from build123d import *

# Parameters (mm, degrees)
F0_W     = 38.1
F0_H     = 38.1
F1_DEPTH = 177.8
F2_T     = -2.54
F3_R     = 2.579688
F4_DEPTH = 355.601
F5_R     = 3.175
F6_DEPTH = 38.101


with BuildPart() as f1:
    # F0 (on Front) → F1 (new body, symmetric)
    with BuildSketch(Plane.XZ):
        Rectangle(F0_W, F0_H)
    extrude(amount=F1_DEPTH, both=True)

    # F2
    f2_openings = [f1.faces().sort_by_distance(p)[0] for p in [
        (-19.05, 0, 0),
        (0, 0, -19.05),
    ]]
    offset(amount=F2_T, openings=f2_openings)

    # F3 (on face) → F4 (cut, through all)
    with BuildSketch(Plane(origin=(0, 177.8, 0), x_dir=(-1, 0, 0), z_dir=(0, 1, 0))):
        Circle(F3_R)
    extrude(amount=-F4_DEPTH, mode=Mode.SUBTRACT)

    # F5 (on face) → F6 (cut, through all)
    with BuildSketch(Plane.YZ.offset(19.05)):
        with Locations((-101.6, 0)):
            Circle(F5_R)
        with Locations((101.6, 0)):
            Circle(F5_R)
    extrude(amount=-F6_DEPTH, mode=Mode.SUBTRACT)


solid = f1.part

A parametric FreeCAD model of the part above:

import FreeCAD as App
import Part
import Sketcher
from FreeCAD import Vector
Q = App.Units.Quantity


def faces_at(feature, points):
    """Names of the faces that lie closest to the given points."""
    faces = feature.Shape.Faces
    near = lambda p: min(range(len(faces)), key=lambda i: faces[i].distToShape(Part.Vertex(*p))[0])
    return sorted({f"Face{near(p) + 1}" for p in points})


def add_polygon(sketch, points):
    """Adds a closed chain of lines whose ends are joined by coincident constraints."""
    first, n = sketch.GeometryCount, len(points)
    for a, b in zip(points, points[1:] + points[:1]):
        sketch.addGeometry(Part.LineSegment(App.Vector(*a, 0), App.Vector(*b, 0)), False)
    for i in range(n):
        sketch.addConstraint(Sketcher.Constraint("Coincident", first + i, 2, first + (i + 1) % n, 1))

doc = App.newDocument("Part")
body = doc.addObject("PartDesign::Body", "Body")

# Sketch on XZ plane
sketch1 = body.newObject("Sketcher::SketchObject", "Sketch")
sketch1.AttachmentSupport = (doc.getObject("XZ_Plane"), [""])
sketch1.MapMode = "FlatFace"
add_polygon(sketch1, [(-19, 19), (-19, -19), (19, -19), (19, 19)])  # lines 0-3
sketch1.addConstraint([
    Sketcher.Constraint("Vertical", 0),
    Sketcher.Constraint("Horizontal", 1),
    Sketcher.Constraint("Vertical", 2),
    Sketcher.Constraint("Horizontal", 3),
    Sketcher.Constraint("Symmetric", 0, 2, 2, 2, -1, 1),
    Sketcher.Constraint("Equal", 3, 0),
    Sketcher.Constraint("DistanceX", 1, 1, 1, 2, Q("1.5 in")),
])
pad1 = body.newObject("PartDesign::Pad", "Pad")
pad1.Profile = sketch1
pad1.Length = Q("14 in")
pad1.Midplane = True
doc.recompute()

thickness = body.newObject("PartDesign::Thickness", "Thickness")
thickness.Base = (pad1, faces_at(pad1, [(-19.05, 0, 0), (0, 0, -19.05)]))
thickness.Value = Q("0.1 in")
thickness.Reversed = True
thickness.Join = "Arc"

# Sketch on XZ plane
sketch2 = body.newObject("Sketcher::SketchObject", "Sketch001")
sketch2.AttachmentSupport = (doc.getObject("XZ_Plane"), [""])
sketch2.MapMode = "FlatFace"
sketch2.AttachmentOffset = App.Placement(Vector(0, 0, -7 * 25.4), App.Rotation())
sketch2.addGeometry(Part.Circle(Vector(0, 0, 0), Vector(0, 0, 1), 2.6), False)
sketch2.addConstraint([
    Sketcher.Constraint("Coincident", 0, 3, -1, 1),
    Sketcher.Constraint("Diameter", 0, Q("0.203125 in")),
])
pocket1 = body.newObject("PartDesign::Pocket", "Pocket")
pocket1.Profile = sketch2
pocket1.Type = "ThroughAll"
pocket1.Reversed = True

# Sketch on YZ plane
sketch3 = body.newObject("Sketcher::SketchObject", "Sketch002")
sketch3.AttachmentSupport = (doc.getObject("YZ_Plane"), [""])
sketch3.MapMode = "FlatFace"
sketch3.AttachmentOffset = App.Placement(Vector(0, 0, 0.75 * 25.4), App.Rotation())
sketch3.addGeometry([
    Part.Circle(Vector(-101.6, 0, 0), Vector(0, 0, 1), 3.2),
    Part.Circle(Vector(101.6, 0, 0), Vector(0, 0, 1), 3.2),
], False)
sketch3.addConstraint([
    Sketcher.Constraint("Equal", 0, 1),
    Sketcher.Constraint("Symmetric", 0, 3, 1, 3, -1, 1),
    Sketcher.Constraint("PointOnObject", 0, 3, -1),
    Sketcher.Constraint("Diameter", 0, Q("0.25 in")),
    Sketcher.Constraint("DistanceX", 0, 3, -1, 1, Q("4 in")),
])
pocket2 = body.newObject("PartDesign::Pocket", "Pocket001")
pocket2.Profile = sketch3
pocket2.Type = "ThroughAll"

doc.recompute()
